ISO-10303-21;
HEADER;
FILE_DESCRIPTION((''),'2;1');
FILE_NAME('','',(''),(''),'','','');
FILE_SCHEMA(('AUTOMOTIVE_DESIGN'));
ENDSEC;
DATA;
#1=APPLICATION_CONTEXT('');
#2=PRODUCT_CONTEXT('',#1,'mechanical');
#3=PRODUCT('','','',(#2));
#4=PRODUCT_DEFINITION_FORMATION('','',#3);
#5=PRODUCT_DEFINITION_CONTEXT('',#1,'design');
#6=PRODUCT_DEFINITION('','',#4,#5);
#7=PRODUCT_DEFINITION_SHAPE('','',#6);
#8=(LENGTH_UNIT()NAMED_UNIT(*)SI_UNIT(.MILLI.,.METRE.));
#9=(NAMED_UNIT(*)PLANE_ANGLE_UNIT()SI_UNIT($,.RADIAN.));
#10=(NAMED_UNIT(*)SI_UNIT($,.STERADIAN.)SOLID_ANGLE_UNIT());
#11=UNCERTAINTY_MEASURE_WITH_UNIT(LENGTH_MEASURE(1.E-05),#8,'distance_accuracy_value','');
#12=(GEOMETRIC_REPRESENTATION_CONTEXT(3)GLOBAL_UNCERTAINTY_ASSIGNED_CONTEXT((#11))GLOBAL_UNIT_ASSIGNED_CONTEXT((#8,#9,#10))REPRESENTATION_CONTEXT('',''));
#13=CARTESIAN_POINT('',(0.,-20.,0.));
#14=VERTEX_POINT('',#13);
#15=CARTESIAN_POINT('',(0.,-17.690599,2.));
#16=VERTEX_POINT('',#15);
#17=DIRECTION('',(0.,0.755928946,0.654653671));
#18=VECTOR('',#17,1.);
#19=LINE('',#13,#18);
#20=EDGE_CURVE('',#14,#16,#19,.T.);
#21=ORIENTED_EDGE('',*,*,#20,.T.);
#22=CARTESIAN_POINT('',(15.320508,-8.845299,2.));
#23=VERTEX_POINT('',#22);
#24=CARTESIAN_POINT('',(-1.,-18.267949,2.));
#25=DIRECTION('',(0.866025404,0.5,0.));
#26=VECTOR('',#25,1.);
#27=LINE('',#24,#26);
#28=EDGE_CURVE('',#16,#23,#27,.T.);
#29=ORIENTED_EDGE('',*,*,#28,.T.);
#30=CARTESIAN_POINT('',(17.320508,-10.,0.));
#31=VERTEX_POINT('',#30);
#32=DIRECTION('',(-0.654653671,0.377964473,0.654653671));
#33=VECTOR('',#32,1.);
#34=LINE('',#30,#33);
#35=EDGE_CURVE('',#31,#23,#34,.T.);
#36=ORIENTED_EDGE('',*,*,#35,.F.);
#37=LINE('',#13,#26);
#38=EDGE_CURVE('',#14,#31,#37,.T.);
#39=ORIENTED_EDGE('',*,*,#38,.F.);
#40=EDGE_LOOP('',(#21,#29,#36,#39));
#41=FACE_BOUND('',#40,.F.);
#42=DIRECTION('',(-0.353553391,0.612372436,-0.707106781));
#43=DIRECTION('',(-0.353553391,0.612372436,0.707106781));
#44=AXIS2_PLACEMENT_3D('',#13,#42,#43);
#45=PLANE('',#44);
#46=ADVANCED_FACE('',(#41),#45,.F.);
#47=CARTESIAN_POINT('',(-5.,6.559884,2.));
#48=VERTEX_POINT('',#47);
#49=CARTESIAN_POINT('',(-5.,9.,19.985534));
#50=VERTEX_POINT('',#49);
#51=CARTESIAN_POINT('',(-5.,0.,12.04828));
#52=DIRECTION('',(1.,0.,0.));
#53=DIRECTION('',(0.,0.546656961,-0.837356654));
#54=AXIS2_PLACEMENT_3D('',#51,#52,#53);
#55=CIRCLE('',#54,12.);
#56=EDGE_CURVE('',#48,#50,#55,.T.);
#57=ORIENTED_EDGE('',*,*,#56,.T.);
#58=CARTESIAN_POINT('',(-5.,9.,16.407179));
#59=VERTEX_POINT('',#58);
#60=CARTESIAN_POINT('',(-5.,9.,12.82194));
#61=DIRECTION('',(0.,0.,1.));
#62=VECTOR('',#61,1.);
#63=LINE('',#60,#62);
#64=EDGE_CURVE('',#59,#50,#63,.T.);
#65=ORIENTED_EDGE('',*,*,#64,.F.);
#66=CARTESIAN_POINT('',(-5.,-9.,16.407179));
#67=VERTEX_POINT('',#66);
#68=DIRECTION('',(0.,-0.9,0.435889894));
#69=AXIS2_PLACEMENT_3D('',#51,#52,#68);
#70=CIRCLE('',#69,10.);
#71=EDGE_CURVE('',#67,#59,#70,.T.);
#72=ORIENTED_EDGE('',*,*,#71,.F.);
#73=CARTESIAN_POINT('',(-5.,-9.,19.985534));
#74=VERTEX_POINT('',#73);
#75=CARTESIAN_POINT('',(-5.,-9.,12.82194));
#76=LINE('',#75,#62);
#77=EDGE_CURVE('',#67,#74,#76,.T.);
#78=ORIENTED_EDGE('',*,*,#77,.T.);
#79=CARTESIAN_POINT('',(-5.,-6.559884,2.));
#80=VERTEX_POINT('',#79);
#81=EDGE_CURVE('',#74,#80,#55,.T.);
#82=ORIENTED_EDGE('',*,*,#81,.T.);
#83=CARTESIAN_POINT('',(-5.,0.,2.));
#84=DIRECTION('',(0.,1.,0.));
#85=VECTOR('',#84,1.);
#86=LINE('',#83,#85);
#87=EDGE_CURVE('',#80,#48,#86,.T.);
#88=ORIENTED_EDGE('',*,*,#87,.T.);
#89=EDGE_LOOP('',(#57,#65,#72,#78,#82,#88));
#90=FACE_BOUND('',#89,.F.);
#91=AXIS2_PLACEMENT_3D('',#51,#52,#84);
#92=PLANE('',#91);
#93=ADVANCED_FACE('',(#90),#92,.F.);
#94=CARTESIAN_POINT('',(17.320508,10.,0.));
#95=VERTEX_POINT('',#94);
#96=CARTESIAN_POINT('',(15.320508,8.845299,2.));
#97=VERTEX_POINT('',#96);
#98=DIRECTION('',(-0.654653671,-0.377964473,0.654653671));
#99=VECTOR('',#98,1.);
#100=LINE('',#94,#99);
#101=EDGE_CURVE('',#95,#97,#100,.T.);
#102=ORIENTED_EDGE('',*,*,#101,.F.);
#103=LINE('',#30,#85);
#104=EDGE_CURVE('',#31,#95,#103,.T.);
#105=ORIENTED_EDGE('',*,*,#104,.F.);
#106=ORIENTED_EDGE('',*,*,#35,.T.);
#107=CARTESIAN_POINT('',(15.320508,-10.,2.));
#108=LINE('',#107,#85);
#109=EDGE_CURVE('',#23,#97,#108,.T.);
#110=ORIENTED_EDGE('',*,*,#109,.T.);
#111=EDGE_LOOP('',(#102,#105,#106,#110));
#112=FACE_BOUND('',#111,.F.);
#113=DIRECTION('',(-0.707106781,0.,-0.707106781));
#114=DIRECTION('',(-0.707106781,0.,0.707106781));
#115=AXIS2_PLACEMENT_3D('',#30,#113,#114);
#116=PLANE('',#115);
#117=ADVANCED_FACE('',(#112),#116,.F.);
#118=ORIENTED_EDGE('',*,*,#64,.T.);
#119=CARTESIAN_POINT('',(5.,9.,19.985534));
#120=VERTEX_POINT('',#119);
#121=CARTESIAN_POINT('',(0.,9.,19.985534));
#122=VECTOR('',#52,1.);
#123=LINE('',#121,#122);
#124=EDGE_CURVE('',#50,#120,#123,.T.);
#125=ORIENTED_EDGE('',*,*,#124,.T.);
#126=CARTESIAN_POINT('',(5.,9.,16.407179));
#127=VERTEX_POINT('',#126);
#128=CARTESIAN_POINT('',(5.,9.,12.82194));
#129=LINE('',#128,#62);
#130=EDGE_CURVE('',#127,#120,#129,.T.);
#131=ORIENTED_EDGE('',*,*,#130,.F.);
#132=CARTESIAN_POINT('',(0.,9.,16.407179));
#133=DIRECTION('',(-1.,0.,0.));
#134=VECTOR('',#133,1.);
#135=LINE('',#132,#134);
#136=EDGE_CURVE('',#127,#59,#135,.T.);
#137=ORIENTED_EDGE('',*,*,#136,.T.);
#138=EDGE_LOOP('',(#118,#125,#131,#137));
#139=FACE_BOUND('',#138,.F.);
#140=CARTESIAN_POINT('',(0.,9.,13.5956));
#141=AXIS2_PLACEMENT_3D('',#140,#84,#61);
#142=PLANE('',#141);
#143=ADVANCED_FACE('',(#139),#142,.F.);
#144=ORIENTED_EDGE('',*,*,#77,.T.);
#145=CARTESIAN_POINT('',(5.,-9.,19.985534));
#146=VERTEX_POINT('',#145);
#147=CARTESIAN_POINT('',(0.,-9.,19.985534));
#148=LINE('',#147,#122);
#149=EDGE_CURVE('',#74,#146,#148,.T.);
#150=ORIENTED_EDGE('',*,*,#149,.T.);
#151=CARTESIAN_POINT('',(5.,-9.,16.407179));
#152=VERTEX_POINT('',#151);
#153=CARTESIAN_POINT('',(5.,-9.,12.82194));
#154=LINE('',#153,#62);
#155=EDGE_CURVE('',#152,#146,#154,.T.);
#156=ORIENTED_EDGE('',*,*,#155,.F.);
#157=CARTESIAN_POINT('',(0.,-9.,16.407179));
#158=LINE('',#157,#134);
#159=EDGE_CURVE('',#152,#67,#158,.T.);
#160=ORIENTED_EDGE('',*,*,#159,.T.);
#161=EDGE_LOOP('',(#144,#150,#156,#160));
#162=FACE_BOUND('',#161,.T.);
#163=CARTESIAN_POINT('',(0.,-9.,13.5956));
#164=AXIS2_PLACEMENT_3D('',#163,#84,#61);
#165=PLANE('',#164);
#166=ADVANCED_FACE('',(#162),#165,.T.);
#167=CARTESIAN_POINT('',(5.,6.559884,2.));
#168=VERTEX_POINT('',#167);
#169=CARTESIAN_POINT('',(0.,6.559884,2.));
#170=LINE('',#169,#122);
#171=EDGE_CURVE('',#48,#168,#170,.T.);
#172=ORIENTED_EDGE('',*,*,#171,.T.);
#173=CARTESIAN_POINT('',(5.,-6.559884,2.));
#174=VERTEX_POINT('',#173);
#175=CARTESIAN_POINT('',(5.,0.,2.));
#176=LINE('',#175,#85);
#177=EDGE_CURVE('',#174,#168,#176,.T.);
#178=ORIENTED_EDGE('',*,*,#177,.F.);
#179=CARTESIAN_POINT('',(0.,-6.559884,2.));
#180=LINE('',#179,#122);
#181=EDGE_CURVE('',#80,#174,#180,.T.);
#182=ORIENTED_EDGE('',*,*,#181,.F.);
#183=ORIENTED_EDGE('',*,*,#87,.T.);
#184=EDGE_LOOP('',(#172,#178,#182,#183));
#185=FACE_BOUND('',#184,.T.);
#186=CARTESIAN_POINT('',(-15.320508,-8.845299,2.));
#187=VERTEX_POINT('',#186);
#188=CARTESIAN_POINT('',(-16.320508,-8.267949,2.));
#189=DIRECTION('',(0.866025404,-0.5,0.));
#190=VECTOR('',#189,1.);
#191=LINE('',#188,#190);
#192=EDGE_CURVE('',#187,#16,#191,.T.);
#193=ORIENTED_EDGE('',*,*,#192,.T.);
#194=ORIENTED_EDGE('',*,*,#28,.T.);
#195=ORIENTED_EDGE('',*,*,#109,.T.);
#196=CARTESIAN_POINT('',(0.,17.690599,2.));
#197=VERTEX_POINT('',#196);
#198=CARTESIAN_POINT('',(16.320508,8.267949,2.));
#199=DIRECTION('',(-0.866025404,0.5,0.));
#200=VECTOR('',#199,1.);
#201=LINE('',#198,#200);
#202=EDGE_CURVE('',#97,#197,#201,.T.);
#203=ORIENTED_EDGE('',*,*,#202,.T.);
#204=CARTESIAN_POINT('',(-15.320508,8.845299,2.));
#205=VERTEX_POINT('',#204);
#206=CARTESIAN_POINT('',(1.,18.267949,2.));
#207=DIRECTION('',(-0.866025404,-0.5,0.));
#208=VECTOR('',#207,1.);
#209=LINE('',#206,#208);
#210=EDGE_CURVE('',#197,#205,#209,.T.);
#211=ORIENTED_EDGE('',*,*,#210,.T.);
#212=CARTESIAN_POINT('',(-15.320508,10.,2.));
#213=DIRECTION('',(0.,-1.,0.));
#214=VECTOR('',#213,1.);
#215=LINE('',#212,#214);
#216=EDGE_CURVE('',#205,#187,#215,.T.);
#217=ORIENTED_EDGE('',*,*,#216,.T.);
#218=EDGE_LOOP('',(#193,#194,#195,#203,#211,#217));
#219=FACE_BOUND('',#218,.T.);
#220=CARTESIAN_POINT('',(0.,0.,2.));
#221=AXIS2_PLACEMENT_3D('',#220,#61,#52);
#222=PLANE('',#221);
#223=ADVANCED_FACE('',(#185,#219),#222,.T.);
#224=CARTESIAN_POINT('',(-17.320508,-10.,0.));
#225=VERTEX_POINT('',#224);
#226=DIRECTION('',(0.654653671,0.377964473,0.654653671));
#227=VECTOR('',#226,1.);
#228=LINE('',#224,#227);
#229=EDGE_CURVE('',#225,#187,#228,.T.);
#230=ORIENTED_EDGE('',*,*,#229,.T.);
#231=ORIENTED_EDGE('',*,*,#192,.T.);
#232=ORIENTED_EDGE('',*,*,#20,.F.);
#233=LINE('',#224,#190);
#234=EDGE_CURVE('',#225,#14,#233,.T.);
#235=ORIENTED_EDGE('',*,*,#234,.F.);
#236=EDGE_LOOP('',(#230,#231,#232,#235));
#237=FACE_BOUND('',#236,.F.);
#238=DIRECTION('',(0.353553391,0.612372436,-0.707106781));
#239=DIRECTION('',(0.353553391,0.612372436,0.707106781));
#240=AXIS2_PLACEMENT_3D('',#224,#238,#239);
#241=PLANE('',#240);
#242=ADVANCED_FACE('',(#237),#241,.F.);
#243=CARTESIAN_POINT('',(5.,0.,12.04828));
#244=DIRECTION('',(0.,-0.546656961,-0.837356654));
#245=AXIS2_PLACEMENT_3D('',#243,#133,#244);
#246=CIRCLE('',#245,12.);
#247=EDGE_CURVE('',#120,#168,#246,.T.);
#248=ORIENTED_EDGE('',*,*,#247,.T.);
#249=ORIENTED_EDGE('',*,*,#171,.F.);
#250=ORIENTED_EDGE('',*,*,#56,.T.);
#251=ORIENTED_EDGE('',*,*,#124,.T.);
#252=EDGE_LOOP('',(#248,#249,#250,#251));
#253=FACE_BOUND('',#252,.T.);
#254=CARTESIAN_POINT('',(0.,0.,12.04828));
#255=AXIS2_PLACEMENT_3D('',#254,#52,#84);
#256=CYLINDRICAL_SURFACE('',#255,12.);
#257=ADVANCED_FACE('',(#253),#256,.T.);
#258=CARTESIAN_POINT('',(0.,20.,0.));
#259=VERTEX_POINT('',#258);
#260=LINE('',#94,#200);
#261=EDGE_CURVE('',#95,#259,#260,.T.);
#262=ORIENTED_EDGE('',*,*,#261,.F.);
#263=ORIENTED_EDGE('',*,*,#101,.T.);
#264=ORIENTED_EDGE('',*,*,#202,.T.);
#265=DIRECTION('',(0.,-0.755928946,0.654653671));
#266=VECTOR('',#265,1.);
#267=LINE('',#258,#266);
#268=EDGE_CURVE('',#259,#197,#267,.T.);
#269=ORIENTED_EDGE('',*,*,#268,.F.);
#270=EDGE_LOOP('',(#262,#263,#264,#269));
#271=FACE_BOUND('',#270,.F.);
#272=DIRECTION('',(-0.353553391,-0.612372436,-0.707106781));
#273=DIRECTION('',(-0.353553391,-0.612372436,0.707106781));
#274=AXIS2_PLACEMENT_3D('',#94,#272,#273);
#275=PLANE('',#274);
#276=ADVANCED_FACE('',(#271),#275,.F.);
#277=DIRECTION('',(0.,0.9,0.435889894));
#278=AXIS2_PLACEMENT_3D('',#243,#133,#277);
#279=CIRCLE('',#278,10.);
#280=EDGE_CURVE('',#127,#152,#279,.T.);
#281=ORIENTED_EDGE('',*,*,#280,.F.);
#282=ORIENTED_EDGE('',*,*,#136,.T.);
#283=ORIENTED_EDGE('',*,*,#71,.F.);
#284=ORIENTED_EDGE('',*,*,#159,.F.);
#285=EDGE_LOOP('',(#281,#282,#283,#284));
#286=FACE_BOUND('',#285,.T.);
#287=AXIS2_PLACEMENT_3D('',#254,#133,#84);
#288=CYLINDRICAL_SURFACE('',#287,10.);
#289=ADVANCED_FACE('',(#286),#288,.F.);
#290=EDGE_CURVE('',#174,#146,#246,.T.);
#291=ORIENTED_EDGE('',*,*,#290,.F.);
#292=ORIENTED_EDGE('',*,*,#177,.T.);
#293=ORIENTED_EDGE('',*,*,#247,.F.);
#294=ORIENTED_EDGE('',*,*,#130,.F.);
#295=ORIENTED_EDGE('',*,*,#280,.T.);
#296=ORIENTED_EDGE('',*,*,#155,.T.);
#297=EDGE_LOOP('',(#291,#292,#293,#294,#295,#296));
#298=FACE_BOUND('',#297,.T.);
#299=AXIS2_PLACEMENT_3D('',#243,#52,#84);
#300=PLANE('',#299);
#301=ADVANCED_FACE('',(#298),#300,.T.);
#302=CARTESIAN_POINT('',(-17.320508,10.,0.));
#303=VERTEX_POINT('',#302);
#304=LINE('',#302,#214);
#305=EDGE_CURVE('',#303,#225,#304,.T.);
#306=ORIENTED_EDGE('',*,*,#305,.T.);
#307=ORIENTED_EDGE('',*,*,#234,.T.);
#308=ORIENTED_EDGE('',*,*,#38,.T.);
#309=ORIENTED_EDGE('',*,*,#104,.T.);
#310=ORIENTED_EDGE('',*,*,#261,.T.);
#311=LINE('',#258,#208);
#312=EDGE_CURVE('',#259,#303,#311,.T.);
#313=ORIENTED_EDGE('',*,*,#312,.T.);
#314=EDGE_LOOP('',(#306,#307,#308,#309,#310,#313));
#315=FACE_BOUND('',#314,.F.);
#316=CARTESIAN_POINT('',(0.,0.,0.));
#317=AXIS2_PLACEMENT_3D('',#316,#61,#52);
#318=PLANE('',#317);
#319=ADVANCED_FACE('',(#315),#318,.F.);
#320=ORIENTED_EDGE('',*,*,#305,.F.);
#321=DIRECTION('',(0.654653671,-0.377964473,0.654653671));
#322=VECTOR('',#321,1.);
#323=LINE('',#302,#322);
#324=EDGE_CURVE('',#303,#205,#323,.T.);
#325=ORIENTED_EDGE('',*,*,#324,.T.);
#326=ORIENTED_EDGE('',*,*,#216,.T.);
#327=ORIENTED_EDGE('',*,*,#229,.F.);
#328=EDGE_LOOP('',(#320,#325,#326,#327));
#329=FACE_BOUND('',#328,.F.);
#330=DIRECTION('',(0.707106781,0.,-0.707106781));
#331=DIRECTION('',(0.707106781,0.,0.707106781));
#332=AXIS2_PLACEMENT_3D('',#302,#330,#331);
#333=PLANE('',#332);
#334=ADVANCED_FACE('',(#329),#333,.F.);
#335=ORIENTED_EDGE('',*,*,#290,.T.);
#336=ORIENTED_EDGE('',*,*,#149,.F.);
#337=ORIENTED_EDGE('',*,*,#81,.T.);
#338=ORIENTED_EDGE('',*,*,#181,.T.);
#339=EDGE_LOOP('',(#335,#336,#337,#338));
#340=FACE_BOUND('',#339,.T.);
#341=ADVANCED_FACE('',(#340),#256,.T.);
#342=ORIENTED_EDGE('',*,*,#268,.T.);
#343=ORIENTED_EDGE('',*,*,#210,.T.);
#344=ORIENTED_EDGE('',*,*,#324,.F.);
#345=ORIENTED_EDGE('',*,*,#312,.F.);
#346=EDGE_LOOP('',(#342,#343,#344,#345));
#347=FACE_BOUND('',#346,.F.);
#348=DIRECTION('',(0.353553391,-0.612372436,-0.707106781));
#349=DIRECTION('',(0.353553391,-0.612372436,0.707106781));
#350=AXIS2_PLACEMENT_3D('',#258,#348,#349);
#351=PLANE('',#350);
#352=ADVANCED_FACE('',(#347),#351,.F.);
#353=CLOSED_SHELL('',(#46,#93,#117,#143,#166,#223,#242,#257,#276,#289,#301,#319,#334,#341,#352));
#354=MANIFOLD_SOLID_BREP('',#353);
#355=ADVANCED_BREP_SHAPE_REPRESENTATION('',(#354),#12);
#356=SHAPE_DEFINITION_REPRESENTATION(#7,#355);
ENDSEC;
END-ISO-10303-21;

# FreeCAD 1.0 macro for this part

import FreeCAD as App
import Part
import Sketcher
from FreeCAD import Vector
Q = App.Units.Quantity


def add_polygon(sketch, points):
    """Adds a closed chain of lines whose ends are joined by coincident constraints."""
    first, n = sketch.GeometryCount, len(points)
    for a, b in zip(points, points[1:] + points[:1]):
        sketch.addGeometry(Part.LineSegment(App.Vector(*a, 0), App.Vector(*b, 0)), False)
    for i in range(n):
        sketch.addConstraint(Sketcher.Constraint("Coincident", first + i, 2, first + (i + 1) % n, 1))

doc = App.newDocument("Part")
body = doc.addObject("PartDesign::Body", "Body")

# Sketch on XY plane
sketch1 = body.newObject("Sketcher::SketchObject", "Sketch")
sketch1.AttachmentSupport = (doc.getObject("XY_Plane"), [""])
sketch1.MapMode = "FlatFace"
add_polygon(sketch1, [(-17.320508, -10), (0, -20), (17.320508, -10), (17.320508, 10), (0, 20), (-17.320508, 10)])  # lines 0-5
sketch1.addConstraint([
    Sketcher.Constraint("Vertical", 2),
    Sketcher.Constraint("Vertical", 5),
    Sketcher.Constraint("Symmetric", 0, 2, 3, 2, -1, 1),
    Sketcher.Constraint("Symmetric", 1, 2, 4, 2, -1, 1),
    Sketcher.Constraint("PointOnObject", 0, 2, -2),
    Sketcher.Constraint("Parallel", 0, 3),
    Sketcher.Constraint("Horizontal", 2, 2, 4, 2),
    Sketcher.Constraint("DistanceY", 2, 1, 2, 2, Q("20 mm")),
    Sketcher.Constraint("Angle", 0, Q("-30 deg")),
    Sketcher.Constraint("Distance", 0, Q("20 mm")),
])
pad1 = body.newObject("PartDesign::Pad", "Pad")
pad1.Profile = sketch1
pad1.Length = 2
pad1.TaperAngle = -45

# Sketch on YZ plane
sketch2 = body.newObject("Sketcher::SketchObject", "Sketch001")
sketch2.AttachmentSupport = (doc.getObject("YZ_Plane"), [""])
sketch2.MapMode = "FlatFace"
sketch2.addGeometry([
    Part.Circle(Vector(0, 12.04828, 0), Vector(0, 0, 1), 12),
    Part.Circle(Vector(0, 12.04828, 0), Vector(0, 0, 1), 10),
], False)
sketch2.addConstraint([
    Sketcher.Constraint("Coincident", 1, 3, 0, 3),
    Sketcher.Constraint("PointOnObject", 0, 3, -2),
    Sketcher.Constraint("Diameter", 0, Q("24 mm")),
    Sketcher.Constraint("Diameter", 1, Q("20 mm")),
    Sketcher.Constraint("DistanceY", -1, 1, 0, 3, Q("12.04828 mm")),
])
pad2 = body.newObject("PartDesign::Pad", "Pad001")
pad2.Profile = sketch2
pad2.Length = 10
pad2.Midplane = True

# Sketch on YZ plane
sketch3 = body.newObject("Sketcher::SketchObject", "Sketch002")
sketch3.AttachmentSupport = (doc.getObject("YZ_Plane"), [""])
sketch3.MapMode = "FlatFace"
add_polygon(sketch3, [(-9, 31.5956), (-9, 13.5956), (9, 13.5956), (9, 31.5956)])  # lines 0-3
sketch3.addConstraint([
    Sketcher.Constraint("Vertical", 0),
    Sketcher.Constraint("Horizontal", 1),
    Sketcher.Constraint("Vertical", 2),
    Sketcher.Constraint("Horizontal", 3),
    Sketcher.Constraint("Equal", 3, 0),
    Sketcher.Constraint("DistanceX", 1, 1, 1, 2, Q("18 mm")),
    Sketcher.Constraint("DistanceX", 0, 2, -1, 1, Q("9 mm")),
    Sketcher.Constraint("DistanceY", -1, 1, 0, 2, Q("13.5956 mm")),
])
pocket1 = body.newObject("PartDesign::Pocket", "Pocket")
pocket1.Profile = sketch3
pocket1.Length = 25
pocket1.Midplane = True

doc.recompute()
